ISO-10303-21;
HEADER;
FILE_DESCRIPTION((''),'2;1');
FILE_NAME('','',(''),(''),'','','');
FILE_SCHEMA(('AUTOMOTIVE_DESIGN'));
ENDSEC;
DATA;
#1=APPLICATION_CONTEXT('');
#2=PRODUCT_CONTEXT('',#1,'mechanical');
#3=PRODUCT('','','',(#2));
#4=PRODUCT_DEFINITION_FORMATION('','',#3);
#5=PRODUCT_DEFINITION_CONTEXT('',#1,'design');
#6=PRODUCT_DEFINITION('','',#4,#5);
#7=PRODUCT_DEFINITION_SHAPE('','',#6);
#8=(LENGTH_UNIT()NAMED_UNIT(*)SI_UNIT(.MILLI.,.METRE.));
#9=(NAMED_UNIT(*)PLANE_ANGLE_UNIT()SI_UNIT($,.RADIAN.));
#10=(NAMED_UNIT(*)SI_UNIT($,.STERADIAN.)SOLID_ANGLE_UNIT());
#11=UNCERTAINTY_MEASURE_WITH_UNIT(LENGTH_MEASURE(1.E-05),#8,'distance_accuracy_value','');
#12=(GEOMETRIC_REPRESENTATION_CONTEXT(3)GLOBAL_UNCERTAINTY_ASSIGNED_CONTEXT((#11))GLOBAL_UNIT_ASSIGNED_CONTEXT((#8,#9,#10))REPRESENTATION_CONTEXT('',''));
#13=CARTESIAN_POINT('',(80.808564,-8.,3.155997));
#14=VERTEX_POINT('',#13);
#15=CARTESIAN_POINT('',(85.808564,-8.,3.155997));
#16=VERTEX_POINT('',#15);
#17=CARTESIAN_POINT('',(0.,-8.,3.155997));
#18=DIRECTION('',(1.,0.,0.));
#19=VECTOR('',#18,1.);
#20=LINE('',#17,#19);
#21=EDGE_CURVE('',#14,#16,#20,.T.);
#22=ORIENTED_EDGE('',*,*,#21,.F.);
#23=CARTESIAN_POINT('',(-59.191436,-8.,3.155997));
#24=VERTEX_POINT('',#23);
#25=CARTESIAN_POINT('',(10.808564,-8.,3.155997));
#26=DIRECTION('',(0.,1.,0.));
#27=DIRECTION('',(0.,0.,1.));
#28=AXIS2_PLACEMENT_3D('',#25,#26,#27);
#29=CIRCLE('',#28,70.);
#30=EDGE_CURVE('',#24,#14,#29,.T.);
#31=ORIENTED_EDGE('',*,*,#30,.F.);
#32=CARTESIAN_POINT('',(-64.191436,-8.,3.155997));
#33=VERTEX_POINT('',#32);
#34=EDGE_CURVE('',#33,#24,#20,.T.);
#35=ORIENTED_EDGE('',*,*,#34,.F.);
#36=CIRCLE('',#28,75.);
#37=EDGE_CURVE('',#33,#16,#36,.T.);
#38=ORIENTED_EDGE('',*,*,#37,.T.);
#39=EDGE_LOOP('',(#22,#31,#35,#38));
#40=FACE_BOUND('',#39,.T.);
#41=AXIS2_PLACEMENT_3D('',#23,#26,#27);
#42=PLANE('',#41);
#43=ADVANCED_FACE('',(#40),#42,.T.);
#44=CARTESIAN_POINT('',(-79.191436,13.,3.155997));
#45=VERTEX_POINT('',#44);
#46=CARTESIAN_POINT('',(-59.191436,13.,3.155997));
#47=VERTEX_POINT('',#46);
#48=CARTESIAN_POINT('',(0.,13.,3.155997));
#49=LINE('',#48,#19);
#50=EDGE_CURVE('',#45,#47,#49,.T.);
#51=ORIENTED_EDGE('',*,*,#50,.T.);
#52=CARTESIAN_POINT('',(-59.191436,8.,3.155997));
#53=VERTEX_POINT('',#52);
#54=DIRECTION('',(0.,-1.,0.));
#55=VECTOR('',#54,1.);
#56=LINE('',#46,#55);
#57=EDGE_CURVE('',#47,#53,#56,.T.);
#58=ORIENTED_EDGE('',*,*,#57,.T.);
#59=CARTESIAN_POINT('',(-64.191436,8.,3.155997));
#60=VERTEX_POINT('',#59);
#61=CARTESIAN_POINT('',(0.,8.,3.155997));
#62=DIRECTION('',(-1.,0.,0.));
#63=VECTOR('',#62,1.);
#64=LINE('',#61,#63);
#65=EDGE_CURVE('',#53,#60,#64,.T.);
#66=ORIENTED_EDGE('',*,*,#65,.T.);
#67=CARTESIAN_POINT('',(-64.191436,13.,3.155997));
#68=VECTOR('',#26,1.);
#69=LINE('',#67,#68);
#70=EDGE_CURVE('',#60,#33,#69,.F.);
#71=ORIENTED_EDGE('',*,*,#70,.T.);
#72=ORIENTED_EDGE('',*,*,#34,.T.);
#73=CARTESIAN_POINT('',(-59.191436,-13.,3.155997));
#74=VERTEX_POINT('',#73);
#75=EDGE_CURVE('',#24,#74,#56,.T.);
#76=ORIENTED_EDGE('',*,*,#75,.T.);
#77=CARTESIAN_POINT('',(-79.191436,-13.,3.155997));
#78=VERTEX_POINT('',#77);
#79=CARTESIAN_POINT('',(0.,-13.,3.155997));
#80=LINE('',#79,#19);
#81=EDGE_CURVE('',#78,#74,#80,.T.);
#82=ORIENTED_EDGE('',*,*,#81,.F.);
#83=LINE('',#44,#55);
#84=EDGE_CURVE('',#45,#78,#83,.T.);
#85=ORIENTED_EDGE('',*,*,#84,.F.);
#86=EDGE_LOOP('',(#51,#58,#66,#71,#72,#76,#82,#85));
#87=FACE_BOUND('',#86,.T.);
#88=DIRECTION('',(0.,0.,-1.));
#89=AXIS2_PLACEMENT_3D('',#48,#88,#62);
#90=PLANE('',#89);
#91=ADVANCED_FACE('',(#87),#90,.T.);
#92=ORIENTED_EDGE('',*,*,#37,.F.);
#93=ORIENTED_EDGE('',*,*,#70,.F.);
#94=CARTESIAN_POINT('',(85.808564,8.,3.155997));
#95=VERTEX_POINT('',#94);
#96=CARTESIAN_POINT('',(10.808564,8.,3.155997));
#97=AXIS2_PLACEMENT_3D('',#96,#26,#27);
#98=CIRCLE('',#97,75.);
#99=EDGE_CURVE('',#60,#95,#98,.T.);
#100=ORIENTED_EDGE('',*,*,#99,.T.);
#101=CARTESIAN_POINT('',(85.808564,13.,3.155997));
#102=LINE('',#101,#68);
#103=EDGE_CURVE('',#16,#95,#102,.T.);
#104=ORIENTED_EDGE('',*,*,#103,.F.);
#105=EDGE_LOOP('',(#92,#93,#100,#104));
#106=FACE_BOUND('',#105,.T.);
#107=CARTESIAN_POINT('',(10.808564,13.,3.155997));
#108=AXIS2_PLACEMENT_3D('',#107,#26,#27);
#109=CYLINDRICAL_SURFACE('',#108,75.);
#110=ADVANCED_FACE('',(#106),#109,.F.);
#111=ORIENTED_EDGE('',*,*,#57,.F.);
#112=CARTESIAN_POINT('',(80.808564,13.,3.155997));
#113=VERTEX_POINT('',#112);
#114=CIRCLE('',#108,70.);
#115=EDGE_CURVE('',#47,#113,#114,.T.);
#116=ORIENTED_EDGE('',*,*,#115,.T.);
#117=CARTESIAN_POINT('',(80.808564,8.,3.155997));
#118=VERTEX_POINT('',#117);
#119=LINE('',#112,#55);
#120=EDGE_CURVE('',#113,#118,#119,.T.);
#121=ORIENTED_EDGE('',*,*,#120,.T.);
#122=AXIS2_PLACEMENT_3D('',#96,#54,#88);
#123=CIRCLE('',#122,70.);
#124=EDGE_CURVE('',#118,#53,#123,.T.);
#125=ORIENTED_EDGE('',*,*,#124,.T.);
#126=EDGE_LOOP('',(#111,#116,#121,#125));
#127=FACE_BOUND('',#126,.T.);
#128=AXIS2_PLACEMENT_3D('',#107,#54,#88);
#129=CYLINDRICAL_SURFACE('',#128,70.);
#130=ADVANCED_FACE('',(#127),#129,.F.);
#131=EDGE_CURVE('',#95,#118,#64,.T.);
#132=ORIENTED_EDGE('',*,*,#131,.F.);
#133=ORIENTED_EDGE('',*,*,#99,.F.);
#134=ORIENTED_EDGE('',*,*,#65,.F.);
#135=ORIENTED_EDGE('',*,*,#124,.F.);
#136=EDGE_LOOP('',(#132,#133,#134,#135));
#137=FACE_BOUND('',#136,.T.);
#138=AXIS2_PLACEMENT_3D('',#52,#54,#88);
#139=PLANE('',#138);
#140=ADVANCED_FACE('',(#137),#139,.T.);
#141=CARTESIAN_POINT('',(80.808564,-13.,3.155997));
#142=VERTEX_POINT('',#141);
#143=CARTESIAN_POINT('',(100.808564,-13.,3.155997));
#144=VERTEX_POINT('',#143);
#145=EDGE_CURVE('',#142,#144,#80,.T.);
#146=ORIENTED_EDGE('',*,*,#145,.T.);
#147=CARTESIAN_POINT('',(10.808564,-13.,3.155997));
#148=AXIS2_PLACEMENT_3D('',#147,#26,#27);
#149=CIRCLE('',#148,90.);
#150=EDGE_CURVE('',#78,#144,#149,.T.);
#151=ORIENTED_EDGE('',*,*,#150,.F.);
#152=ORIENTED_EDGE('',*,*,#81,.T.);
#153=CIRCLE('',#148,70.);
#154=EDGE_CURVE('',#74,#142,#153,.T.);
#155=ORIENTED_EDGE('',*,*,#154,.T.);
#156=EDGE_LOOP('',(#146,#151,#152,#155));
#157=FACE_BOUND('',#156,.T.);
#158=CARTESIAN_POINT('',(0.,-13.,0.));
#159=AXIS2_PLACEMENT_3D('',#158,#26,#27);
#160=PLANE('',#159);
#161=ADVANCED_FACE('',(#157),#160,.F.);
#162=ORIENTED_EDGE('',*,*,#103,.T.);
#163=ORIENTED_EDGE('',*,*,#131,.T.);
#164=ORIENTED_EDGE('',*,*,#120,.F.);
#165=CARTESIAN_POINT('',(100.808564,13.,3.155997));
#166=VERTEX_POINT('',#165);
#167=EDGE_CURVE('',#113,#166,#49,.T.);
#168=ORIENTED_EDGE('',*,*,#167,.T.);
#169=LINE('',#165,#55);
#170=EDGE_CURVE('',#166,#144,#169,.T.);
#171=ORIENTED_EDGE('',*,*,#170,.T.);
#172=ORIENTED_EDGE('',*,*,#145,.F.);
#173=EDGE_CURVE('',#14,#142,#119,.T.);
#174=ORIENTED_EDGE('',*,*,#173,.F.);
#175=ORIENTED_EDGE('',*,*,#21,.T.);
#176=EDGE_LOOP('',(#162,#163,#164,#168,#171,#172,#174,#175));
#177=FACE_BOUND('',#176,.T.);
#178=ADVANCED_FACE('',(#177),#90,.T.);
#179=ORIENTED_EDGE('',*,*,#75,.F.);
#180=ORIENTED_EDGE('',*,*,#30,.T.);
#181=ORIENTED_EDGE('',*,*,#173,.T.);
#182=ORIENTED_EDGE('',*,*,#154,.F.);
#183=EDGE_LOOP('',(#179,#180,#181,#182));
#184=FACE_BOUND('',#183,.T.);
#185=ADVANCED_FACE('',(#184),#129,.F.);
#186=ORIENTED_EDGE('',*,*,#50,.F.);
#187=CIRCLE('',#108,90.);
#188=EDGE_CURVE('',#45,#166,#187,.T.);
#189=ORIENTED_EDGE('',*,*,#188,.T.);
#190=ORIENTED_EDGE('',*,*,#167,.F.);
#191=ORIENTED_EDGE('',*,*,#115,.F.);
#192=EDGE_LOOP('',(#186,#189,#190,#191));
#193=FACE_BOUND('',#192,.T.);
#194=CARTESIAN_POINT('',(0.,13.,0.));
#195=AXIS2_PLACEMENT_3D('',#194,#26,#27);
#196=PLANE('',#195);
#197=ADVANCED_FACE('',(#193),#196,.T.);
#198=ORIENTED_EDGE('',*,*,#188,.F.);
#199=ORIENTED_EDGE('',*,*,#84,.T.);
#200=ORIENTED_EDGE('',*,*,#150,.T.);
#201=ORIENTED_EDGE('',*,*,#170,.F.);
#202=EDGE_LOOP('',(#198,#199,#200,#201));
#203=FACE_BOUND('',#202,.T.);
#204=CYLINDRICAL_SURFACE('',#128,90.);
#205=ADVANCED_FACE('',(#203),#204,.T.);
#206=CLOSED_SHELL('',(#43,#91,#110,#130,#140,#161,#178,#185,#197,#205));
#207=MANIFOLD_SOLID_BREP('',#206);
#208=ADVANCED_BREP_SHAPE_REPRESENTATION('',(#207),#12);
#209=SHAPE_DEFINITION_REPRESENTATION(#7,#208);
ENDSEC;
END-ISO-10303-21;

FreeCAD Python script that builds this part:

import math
import FreeCAD as App
import Part
import Sketcher

V = App.Vector

doc = App.newDocument("Part")
body = doc.addObject("PartDesign::Body", "Body")

# Sketch on XZ plane
sketch1 = body.newObject("Sketcher::SketchObject", "Sketch")
sketch1.AttachmentSupport = (doc.getObject("XZ_Plane"), [""])
sketch1.MapMode = "FlatFace"
sketch1.addGeometry([
    Part.LineSegment(V(-59, 3, 0), V(-79, 3, 0)),
    Part.ArcOfCircle(Part.Circle(V(11, 3, 0), V(0, 0, 1), 90), math.radians(0), math.radians(180)),
    Part.LineSegment(V(101, 3, 0), V(81, 3, 0)),
    Part.ArcOfCircle(Part.Circle(V(11, 3, 0), V(0, 0, 1), 70), math.radians(0), math.radians(180)),
], False)
sketch1.addConstraint([
    Sketcher.Constraint("Coincident", 0, 2, 1, 2),
    Sketcher.Constraint("Coincident", 1, 1, 2, 1),
    Sketcher.Constraint("Coincident", 2, 2, 3, 1),
    Sketcher.Constraint("Coincident", 3, 2, 0, 1),
    Sketcher.Constraint("Horizontal", 0),
    Sketcher.Constraint("Horizontal", 2),
    Sketcher.Constraint("Coincident", 3, 3, 1, 3),
    Sketcher.Constraint("Horizontal", 3, 3, 0, 2),
    Sketcher.Constraint("Horizontal", 0, 2, 1, 1),
    Sketcher.Constraint("Radius", 1, 90.0),
    Sketcher.Constraint("Radius", 3, 70.0),
    Sketcher.Constraint("DistanceX", -1, 1, 1, 3, 10.808564),
    Sketcher.Constraint("DistanceY", -1, 1, 1, 3, 3.155997),
])
pad1 = body.newObject("PartDesign::Pad", "Pad")
pad1.Profile = sketch1
pad1.Length = 26
pad1.Midplane = True

# Sketch on XY plane
sketch2 = body.newObject("Sketcher::SketchObject", "Sketch001")
sketch2.AttachmentSupport = (doc.getObject("XY_Plane"), [""])
sketch2.MapMode = "FlatFace"
sketch2.AttachmentOffset = App.Placement(V(0, 0, 3.155997), App.Rotation())
sketch2.addGeometry([
    Part.LineSegment(V(-59, 8, 0), V(-59, -8, 0)),
    Part.LineSegment(V(-59, -8, 0), V(-64, -8, 0)),
    Part.LineSegment(V(-64, -8, 0), V(-64, 8, 0)),
    Part.LineSegment(V(-64, 8, 0), V(-59, 8, 0)),
], False)
sketch2.addGeometry(Part.LineSegment(V(11, 8, 0), V(11, -8, 0)), True)  # axis
sketch2.addConstraint([
    Sketcher.Constraint("Coincident", 0, 2, 1, 1),
    Sketcher.Constraint("Coincident", 1, 2, 2, 1),
    Sketcher.Constraint("Coincident", 2, 2, 3, 1),
    Sketcher.Constraint("Coincident", 3, 2, 0, 1),
    Sketcher.Constraint("Vertical", 0),
    Sketcher.Constraint("Horizontal", 1),
    Sketcher.Constraint("Vertical", 2),
    Sketcher.Constraint("Horizontal", 3),
    Sketcher.Constraint("Vertical", 4),
    Sketcher.Constraint("Horizontal", 3, 2, 4, 1),
    Sketcher.Constraint("Horizontal", 1, 2, 4, 2),
    Sketcher.Constraint("DistanceX", 1, 2, 1, 1, 5.0),
    Sketcher.Constraint("DistanceY", 0, 2, 0, 1, 16.0),
    Sketcher.Constraint("DistanceY", 0, 2, -1, 1, 8.0),
    Sketcher.Constraint("DistanceX", 3, 2, 4, 1, 70.0),
    Sketcher.Constraint("DistanceX", 0, 2, -1, 1, 59.191436),
])
groove = body.newObject("PartDesign::Groove", "Groove")
groove.Profile = sketch2
groove.ReferenceAxis = (sketch2, ["Axis0"])
groove.Angle = 360

doc.recompute()
